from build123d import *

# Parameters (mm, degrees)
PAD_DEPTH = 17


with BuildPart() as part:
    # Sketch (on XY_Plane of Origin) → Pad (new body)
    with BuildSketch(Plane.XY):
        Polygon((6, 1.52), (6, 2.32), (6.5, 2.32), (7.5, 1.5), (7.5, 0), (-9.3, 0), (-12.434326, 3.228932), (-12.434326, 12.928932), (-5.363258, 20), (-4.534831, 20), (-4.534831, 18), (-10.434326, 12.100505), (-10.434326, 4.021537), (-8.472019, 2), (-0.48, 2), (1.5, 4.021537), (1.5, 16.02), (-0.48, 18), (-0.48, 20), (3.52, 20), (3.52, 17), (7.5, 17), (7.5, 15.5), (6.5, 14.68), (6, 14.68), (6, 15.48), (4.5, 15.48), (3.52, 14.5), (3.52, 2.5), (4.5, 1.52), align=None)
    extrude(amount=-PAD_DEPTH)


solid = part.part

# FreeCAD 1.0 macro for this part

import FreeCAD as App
import Part
import Sketcher

doc = App.newDocument("Part")
body = doc.addObject("PartDesign::Body", "Body")

# Sketch on XY plane
sketch1 = doc.addObject("Sketcher::SketchObject", "Sketch")
body.addObject(sketch1)
sketch1.AttachmentSupport = (doc.XY_Plane, [""])
sketch1.MapMode = "FlatFace"
sketch1.addGeometry([
    Part.LineSegment(App.Vector(6, 2.3, 0), App.Vector(6, 1.5, 0)),  # 0
    Part.LineSegment(App.Vector(6, 1.5, 0), App.Vector(4.5, 1.5, 0)),  # 1
    Part.LineSegment(App.Vector(4.5, 1.5, 0), App.Vector(3.5, 2.5, 0)),  # 2
    Part.LineSegment(App.Vector(3.5, 2.5, 0), App.Vector(3.5, 14.5, 0)),  # 3
    Part.LineSegment(App.Vector(3.5, 14.5, 0), App.Vector(4.5, 15.5, 0)),  # 4
    Part.LineSegment(App.Vector(4.5, 15.5, 0), App.Vector(6, 15.5, 0)),  # 5
    Part.LineSegment(App.Vector(6, 15.5, 0), App.Vector(6, 14.7, 0)),  # 6
    Part.LineSegment(App.Vector(6, 14.7, 0), App.Vector(6.5, 14.7, 0)),  # 7
    Part.LineSegment(App.Vector(6.5, 14.7, 0), App.Vector(7.5, 15.5, 0)),  # 8
    Part.LineSegment(App.Vector(7.5, 15.5, 0), App.Vector(7.5, 17, 0)),  # 9
    Part.LineSegment(App.Vector(7.5, 17, 0), App.Vector(3.5, 17, 0)),  # 10
    Part.LineSegment(App.Vector(3.5, 17, 0), App.Vector(3.5, 20, 0)),  # 11
    Part.LineSegment(App.Vector(3.5, 20, 0), App.Vector(-0.5, 20, 0)),  # 12
    Part.LineSegment(App.Vector(-0.5, 20, 0), App.Vector(-0.5, 18, 0)),  # 13
    Part.LineSegment(App.Vector(-0.5, 18, 0), App.Vector(1.5, 16, 0)),  # 14
    Part.LineSegment(App.Vector(1.5, 16, 0), App.Vector(1.5, 4, 0)),  # 15
    Part.LineSegment(App.Vector(1.5, 4, 0), App.Vector(-0.5, 2, 0)),  # 16
    Part.LineSegment(App.Vector(-0.5, 2, 0), App.Vector(-8.5, 2, 0)),  # 17
    Part.LineSegment(App.Vector(-8.5, 2, 0), App.Vector(-10.4, 4, 0)),  # 18
    Part.LineSegment(App.Vector(-10.4, 4, 0), App.Vector(-10.4, 12.1, 0)),  # 19
    Part.LineSegment(App.Vector(-10.4, 12.1, 0), App.Vector(-4.5, 18, 0)),  # 20
    Part.LineSegment(App.Vector(-4.5, 18, 0), App.Vector(-4.5, 20, 0)),  # 21
    Part.LineSegment(App.Vector(-4.5, 20, 0), App.Vector(-5.4, 20, 0)),  # 22
    Part.LineSegment(App.Vector(-5.4, 20, 0), App.Vector(-12.4, 12.9, 0)),  # 23
    Part.LineSegment(App.Vector(-12.4, 12.9, 0), App.Vector(-12.4, 3.2, 0)),  # 24
    Part.LineSegment(App.Vector(-12.4, 3.2, 0), App.Vector(-9.3, 0, 0)),  # 25
    Part.LineSegment(App.Vector(-9.3, 0, 0), App.Vector(7.5, 0, 0)),  # 26
    Part.LineSegment(App.Vector(7.5, 0, 0), App.Vector(7.5, 1.5, 0)),  # 27
    Part.LineSegment(App.Vector(7.5, 1.5, 0), App.Vector(6.5, 2.3, 0)),  # 28
    Part.LineSegment(App.Vector(6.5, 2.3, 0), App.Vector(6, 2.3, 0)),  # 29
], False)
sketch1.addConstraint([
    Sketcher.Constraint("Coincident", 0, 2, 1, 1),
    Sketcher.Constraint("Coincident", 1, 2, 2, 1),
    Sketcher.Constraint("Coincident", 2, 2, 3, 1),
    Sketcher.Constraint("Coincident", 3, 2, 4, 1),
    Sketcher.Constraint("Coincident", 4, 2, 5, 1),
    Sketcher.Constraint("Coincident", 5, 2, 6, 1),
    Sketcher.Constraint("Coincident", 6, 2, 7, 1),
    Sketcher.Constraint("Coincident", 7, 2, 8, 1),
    Sketcher.Constraint("Coincident", 8, 2, 9, 1),
    Sketcher.Constraint("Coincident", 9, 2, 10, 1),
    Sketcher.Constraint("Coincident", 10, 2, 11, 1),
    Sketcher.Constraint("Coincident", 11, 2, 12, 1),
    Sketcher.Constraint("Coincident", 12, 2, 13, 1),
    Sketcher.Constraint("Coincident", 13, 2, 14, 1),
    Sketcher.Constraint("Coincident", 14, 2, 15, 1),
    Sketcher.Constraint("Coincident", 15, 2, 16, 1),
    Sketcher.Constraint("Coincident", 16, 2, 17, 1),
    Sketcher.Constraint("Coincident", 17, 2, 18, 1),
    Sketcher.Constraint("Coincident", 18, 2, 19, 1),
    Sketcher.Constraint("Coincident", 19, 2, 20, 1),
    Sketcher.Constraint("Coincident", 20, 2, 21, 1),
    Sketcher.Constraint("Coincident", 21, 2, 22, 1),
    Sketcher.Constraint("Coincident", 22, 2, 23, 1),
    Sketcher.Constraint("Coincident", 23, 2, 24, 1),
    Sketcher.Constraint("Coincident", 24, 2, 25, 1),
    Sketcher.Constraint("Coincident", 25, 2, 26, 1),
    Sketcher.Constraint("Coincident", 26, 2, 27, 1),
    Sketcher.Constraint("Coincident", 27, 2, 28, 1),
    Sketcher.Constraint("Coincident", 28, 2, 29, 1),
    Sketcher.Constraint("Coincident", 29, 2, 0, 1),
    Sketcher.Constraint("Vertical", 0),
    Sketcher.Constraint("Horizontal", 1),
    Sketcher.Constraint("Vertical", 3),
    Sketcher.Constraint("Horizontal", 5),
    Sketcher.Constraint("Vertical", 6),
    Sketcher.Constraint("Horizontal", 7),
    Sketcher.Constraint("Vertical", 9),
    Sketcher.Constraint("Horizontal", 10),
    Sketcher.Constraint("Vertical", 11),
    Sketcher.Constraint("Horizontal", 12),
    Sketcher.Constraint("Vertical", 13),
    Sketcher.Constraint("Vertical", 15),
    Sketcher.Constraint("Horizontal", 17),
    Sketcher.Constraint("Vertical", 19),
    Sketcher.Constraint("Vertical", 21),
    Sketcher.Constraint("Horizontal", 22),
    Sketcher.Constraint("Vertical", 24),
    Sketcher.Constraint("Horizontal", 26),
    Sketcher.Constraint("Vertical", 27),
    Sketcher.Constraint("Horizontal", 29),
    Sketcher.Constraint("PointOnObject", 25, 2, -1),
    Sketcher.Constraint("Perpendicular", 2, 4),
    Sketcher.Constraint("Perpendicular", 4, 14),
    Sketcher.Constraint("Perpendicular", 14, 20),
    Sketcher.Constraint("Parallel", 20, 23),
    Sketcher.Constraint("Parallel", 18, 25),
    Sketcher.Constraint("Horizontal", 15, 2, 18, 2),
    Sketcher.Constraint("Horizontal", 13, 2, 20, 2),
    Sketcher.Constraint("Horizontal", 12, 2, 21, 2),
    Sketcher.Constraint("Vertical", 1, 2, 4, 2),
    Sketcher.Constraint("Vertical", 0, 2, 5, 2),
    Sketcher.Constraint("Vertical", 3, 2, 10, 2),
    Sketcher.Constraint("Vertical", 13, 2, 16, 2),
    Sketcher.Constraint("Vertical", 9, 2, 26, 2),
    Sketcher.Constraint("Vertical", 7, 2, 28, 2),
    Sketcher.Constraint("Equal", 0, 6),
    Sketcher.Constraint("Equal", 5, 9),
    Sketcher.Constraint("Equal", 9, 27),
    Sketcher.Constraint("Equal", 2, 4),
    Sketcher.Constraint("Equal", 8, 28),
    Sketcher.Constraint("DistanceX", 12, 2, 12, 1, 4.0),
    Sketcher.Constraint("DistanceY", 3, 1, 3, 2, 12.0),
    Sketcher.Constraint("DistanceY", 11, 1, 11, 2, 3.0),
    Sketcher.Constraint("DistanceY", 13, 2, 13, 1, 2.0),
    Sketcher.Constraint("Distance", 23, 10.0),
    Sketcher.Constraint("DistanceX", 1, 2, 1, 1, 1.5),
    Sketcher.Constraint("DistanceX", 7, 1, 7, 2, 0.5),
    Sketcher.Constraint("DistanceX", 26, 1, 26, 2, 16.8),
    Sketcher.Constraint("DistanceY", 0, 2, 0, 1, 0.8),
    Sketcher.Constraint("DistanceY", 24, 2, 24, 1, 9.7),
    Sketcher.Constraint("DistanceX", -1, 1, 0, 2, 6.0),
    Sketcher.Constraint("DistanceY", -1, 1, 9, 2, 17.0),
    Sketcher.Constraint("DistanceY", -1, 1, 16, 2, 2.0),
    Sketcher.Constraint("DistanceX", 7, 2, 8, 2, 1.0),
    Sketcher.Constraint("DistanceX", 14, 2, 4, 2, 3.0),
    Sketcher.Constraint("DistanceX", 23, 2, 19, 2, 2.0),
    Sketcher.Constraint("Distance", 25, 4.5),
    Sketcher.Constraint("DistanceX", 10, 2, 10, 1, 3.98),
    Sketcher.Constraint("DistanceX", 17, 2, 17, 1, 7.992019),
    Sketcher.Constraint("DistanceX", 22, 2, 22, 1, 0.828427),
])
pad1 = doc.addObject("PartDesign::Pad", "Pad")
body.addObject(pad1)
pad1.Profile = sketch1
pad1.Length = 17
pad1.Reversed = True

doc.recompute()
